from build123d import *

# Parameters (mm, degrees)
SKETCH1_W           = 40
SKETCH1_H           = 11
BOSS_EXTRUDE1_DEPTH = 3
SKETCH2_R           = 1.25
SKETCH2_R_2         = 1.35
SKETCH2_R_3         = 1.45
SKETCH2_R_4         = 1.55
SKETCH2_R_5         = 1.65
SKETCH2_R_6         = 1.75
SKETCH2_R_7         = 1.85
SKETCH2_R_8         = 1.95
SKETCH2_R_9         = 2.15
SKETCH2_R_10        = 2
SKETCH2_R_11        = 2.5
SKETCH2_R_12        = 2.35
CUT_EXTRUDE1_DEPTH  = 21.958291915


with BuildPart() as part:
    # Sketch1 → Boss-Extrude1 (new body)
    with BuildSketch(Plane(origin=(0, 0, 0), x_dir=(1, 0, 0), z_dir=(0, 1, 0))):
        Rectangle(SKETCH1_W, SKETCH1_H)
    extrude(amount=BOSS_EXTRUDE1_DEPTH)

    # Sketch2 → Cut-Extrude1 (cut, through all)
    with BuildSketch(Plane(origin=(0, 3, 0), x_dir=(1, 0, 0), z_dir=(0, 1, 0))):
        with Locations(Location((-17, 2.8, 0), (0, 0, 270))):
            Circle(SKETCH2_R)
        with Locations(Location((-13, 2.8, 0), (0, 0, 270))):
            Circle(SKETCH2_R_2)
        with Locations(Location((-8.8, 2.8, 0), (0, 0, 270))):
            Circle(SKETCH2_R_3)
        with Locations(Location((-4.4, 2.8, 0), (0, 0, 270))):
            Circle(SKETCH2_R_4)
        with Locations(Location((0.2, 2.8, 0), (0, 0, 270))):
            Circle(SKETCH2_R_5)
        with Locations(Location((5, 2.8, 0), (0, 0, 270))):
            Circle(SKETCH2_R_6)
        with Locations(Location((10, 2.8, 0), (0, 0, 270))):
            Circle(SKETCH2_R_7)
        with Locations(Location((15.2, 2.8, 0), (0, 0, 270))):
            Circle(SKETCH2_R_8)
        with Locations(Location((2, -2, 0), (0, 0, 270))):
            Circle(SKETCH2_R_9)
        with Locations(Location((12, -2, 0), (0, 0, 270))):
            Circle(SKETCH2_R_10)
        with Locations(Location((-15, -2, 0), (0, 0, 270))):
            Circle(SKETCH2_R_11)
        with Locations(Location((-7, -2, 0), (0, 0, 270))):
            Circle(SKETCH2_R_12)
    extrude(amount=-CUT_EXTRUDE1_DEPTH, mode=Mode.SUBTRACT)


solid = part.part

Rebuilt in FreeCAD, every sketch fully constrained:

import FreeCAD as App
import Part
import Sketcher
from FreeCAD import Vector
Q = App.Units.Quantity


def add_polygon(sketch, points):
    """Adds a closed chain of lines whose ends are joined by coincident constraints."""
    first, n = sketch.GeometryCount, len(points)
    for a, b in zip(points, points[1:] + points[:1]):
        sketch.addGeometry(Part.LineSegment(App.Vector(*a, 0), App.Vector(*b, 0)), False)
    for i in range(n):
        sketch.addConstraint(Sketcher.Constraint("Coincident", first + i, 2, first + (i + 1) % n, 1))

doc = App.newDocument("Part")
params = doc.addObject("Spreadsheet::Sheet", "Params")
for row, (alias, value) in enumerate([
    ("sketch1_width", "40 mm"),
    ("sketch1_height", "11 mm"),
    ("pad1_length", "3 mm"),
    ("sketch2_diameter", "4 mm"),
    ("sketch2_diameter2", "5 mm"),
    ("sketch2_diameter3", "2.5 mm"),
    ("sketch2_diameter4", "2.7 mm"),
    ("sketch2_diameter5", "2.9 mm"),
], start=1):
    params.set(f"A{row}", alias)
    params.set(f"B{row}", "=" + value)
    params.setAlias(f"B{row}", alias)

body = doc.addObject("PartDesign::Body", "Body")

sketch1 = body.newObject("Sketcher::SketchObject", "Sketch")
sketch1.AttachmentSupport = (doc.getObject("XZ_Plane"), [""])
sketch1.MapMode = "FlatFace"
add_polygon(sketch1, [(-20, -6), (-20, 6), (20, 6), (20, -6)])
sketch1.addConstraint(Sketcher.Constraint("Vertical", 0))
sketch1.addConstraint(Sketcher.Constraint("Horizontal", 1))
sketch1.addConstraint(Sketcher.Constraint("Vertical", 2))
sketch1.addConstraint(Sketcher.Constraint("Horizontal", 3))
sketch1.addConstraint(Sketcher.Constraint("Symmetric", 0, 2, 2, 2, -1, 1))
sketch1.addConstraint(Sketcher.Constraint("DistanceX", 1, 1, 1, 2, Q("40 mm")))
sketch1.addConstraint(Sketcher.Constraint("DistanceY", 0, 1, 0, 2, Q("11 mm")))
sketch1.setExpression("Constraints[9]", "Params.sketch1_width")
sketch1.setExpression("Constraints[10]", "Params.sketch1_height")
pad1 = body.newObject("PartDesign::Pad", "Pad")
pad1.Profile = sketch1
pad1.setExpression("Length", "Params.pad1_length")
pad1.Reversed = True

sketch2 = body.newObject("Sketcher::SketchObject", "Sketch001")
sketch2.AttachmentSupport = (doc.getObject("XZ_Plane"), [""])
sketch2.MapMode = "FlatFace"
sketch2.AttachmentOffset = App.Placement(Vector(0, 0, -3), App.Rotation())
sketch2.addGeometry(Part.Circle(Vector(-17, -2.8, 0), Vector(0, 0, 1), 1.2), False)
sketch2.addGeometry(Part.Circle(Vector(-13, -2.8, 0), Vector(0, 0, 1), 1.4), False)
sketch2.addGeometry(Part.Circle(Vector(-8.8, -2.8, 0), Vector(0, 0, 1), 1.4), False)
sketch2.addGeometry(Part.Circle(Vector(-4.4, -2.8, 0), Vector(0, 0, 1), 1.6), False)
sketch2.addGeometry(Part.Circle(Vector(0.2, -2.8, 0), Vector(0, 0, 1), 1.6), False)
sketch2.addGeometry(Part.Circle(Vector(5, -2.8, 0), Vector(0, 0, 1), 1.8), False)
sketch2.addGeometry(Part.Circle(Vector(10, -2.8, 0), Vector(0, 0, 1), 1.9), False)
sketch2.addGeometry(Part.Circle(Vector(15.2, -2.8, 0), Vector(0, 0, 1), 1.9), False)
sketch2.addGeometry(Part.Circle(Vector(2, 2, 0), Vector(0, 0, 1), 2.1), False)
sketch2.addGeometry(Part.Circle(Vector(12, 2, 0), Vector(0, 0, 1), 2), False)
sketch2.addGeometry(Part.Circle(Vector(-15, 2, 0), Vector(0, 0, 1), 2.5), False)
sketch2.addGeometry(Part.Circle(Vector(-7, 2, 0), Vector(0, 0, 1), 2.4), False)
sketch2.addConstraint(Sketcher.Constraint("Horizontal", 0, 3, 1, 3))
sketch2.addConstraint(Sketcher.Constraint("Horizontal", 1, 3, 2, 3))
sketch2.addConstraint(Sketcher.Constraint("Horizontal", 2, 3, 3, 3))
sketch2.addConstraint(Sketcher.Constraint("Horizontal", 3, 3, 4, 3))
sketch2.addConstraint(Sketcher.Constraint("Horizontal", 4, 3, 5, 3))
sketch2.addConstraint(Sketcher.Constraint("Horizontal", 5, 3, 6, 3))
sketch2.addConstraint(Sketcher.Constraint("Horizontal", 6, 3, 7, 3))
sketch2.addConstraint(Sketcher.Constraint("Horizontal", 8, 3, 9, 3))
sketch2.addConstraint(Sketcher.Constraint("Horizontal", 9, 3, 10, 3))
sketch2.addConstraint(Sketcher.Constraint("Horizontal", 10, 3, 11, 3))
sketch2.addConstraint(Sketcher.Constraint("Diameter", 9, Q("4 mm")))
sketch2.addConstraint(Sketcher.Constraint("Diameter", 10, Q("5 mm")))
sketch2.addConstraint(Sketcher.Constraint("Diameter", 0, Q("2.5 mm")))
sketch2.addConstraint(Sketcher.Constraint("Diameter", 1, Q("2.7 mm")))
sketch2.addConstraint(Sketcher.Constraint("Diameter", 2, Q("2.9 mm")))
sketch2.addConstraint(Sketcher.Constraint("Diameter", 3, Q("3.1 mm")))
sketch2.addConstraint(Sketcher.Constraint("Diameter", 4, Q("3.3 mm")))
sketch2.addConstraint(Sketcher.Constraint("Diameter", 5, Q("3.5 mm")))
sketch2.addConstraint(Sketcher.Constraint("Diameter", 6, Q("3.7 mm")))
sketch2.addConstraint(Sketcher.Constraint("Diameter", 7, Q("3.9 mm")))
sketch2.addConstraint(Sketcher.Constraint("Diameter", 8, Q("4.3 mm")))
sketch2.addConstraint(Sketcher.Constraint("Diameter", 11, Q("4.7 mm")))
sketch2.addConstraint(Sketcher.Constraint("DistanceX", 0, 3, -1, 1, Q("17 mm")))
sketch2.addConstraint(Sketcher.Constraint("DistanceX", 1, 3, -1, 1, Q("13 mm")))
sketch2.addConstraint(Sketcher.Constraint("DistanceX", -1, 1, 5, 3, Q("5 mm")))
sketch2.addConstraint(Sketcher.Constraint("DistanceX", -1, 1, 6, 3, Q("10 mm")))
sketch2.addConstraint(Sketcher.Constraint("DistanceX", -1, 1, 8, 3, Q("2 mm")))
sketch2.addConstraint(Sketcher.Constraint("DistanceY", -1, 1, 8, 3, Q("2 mm")))
sketch2.addConstraint(Sketcher.Constraint("DistanceX", -1, 1, 9, 3, Q("12 mm")))
sketch2.addConstraint(Sketcher.Constraint("DistanceX", 10, 3, -1, 1, Q("15 mm")))
sketch2.addConstraint(Sketcher.Constraint("DistanceX", 11, 3, -1, 1, Q("7 mm")))
sketch2.addConstraint(Sketcher.Constraint("DistanceX", 2, 3, 4, 3, Q("9 mm")))
sketch2.addConstraint(Sketcher.Constraint("DistanceX", 4, 3, 7, 3, Q("15 mm")))
sketch2.addConstraint(Sketcher.Constraint("DistanceY", 0, 3, -1, 1, Q("2.8 mm")))
sketch2.addConstraint(Sketcher.Constraint("DistanceX", 2, 3, -1, 1, Q("8.8 mm")))
sketch2.addConstraint(Sketcher.Constraint("DistanceX", 3, 3, -1, 1, Q("4.4 mm")))
sketch2.setExpression("Constraints[10]", "Params.sketch2_diameter")
sketch2.setExpression("Constraints[11]", "Params.sketch2_diameter2")
sketch2.setExpression("Constraints[12]", "Params.sketch2_diameter3")
sketch2.setExpression("Constraints[13]", "Params.sketch2_diameter4")
sketch2.setExpression("Constraints[14]", "Params.sketch2_diameter5")
pocket1 = body.newObject("PartDesign::Pocket", "Pocket")
pocket1.Profile = sketch2
pocket1.Type = "ThroughAll"
pocket1.Reversed = True

doc.recompute()
